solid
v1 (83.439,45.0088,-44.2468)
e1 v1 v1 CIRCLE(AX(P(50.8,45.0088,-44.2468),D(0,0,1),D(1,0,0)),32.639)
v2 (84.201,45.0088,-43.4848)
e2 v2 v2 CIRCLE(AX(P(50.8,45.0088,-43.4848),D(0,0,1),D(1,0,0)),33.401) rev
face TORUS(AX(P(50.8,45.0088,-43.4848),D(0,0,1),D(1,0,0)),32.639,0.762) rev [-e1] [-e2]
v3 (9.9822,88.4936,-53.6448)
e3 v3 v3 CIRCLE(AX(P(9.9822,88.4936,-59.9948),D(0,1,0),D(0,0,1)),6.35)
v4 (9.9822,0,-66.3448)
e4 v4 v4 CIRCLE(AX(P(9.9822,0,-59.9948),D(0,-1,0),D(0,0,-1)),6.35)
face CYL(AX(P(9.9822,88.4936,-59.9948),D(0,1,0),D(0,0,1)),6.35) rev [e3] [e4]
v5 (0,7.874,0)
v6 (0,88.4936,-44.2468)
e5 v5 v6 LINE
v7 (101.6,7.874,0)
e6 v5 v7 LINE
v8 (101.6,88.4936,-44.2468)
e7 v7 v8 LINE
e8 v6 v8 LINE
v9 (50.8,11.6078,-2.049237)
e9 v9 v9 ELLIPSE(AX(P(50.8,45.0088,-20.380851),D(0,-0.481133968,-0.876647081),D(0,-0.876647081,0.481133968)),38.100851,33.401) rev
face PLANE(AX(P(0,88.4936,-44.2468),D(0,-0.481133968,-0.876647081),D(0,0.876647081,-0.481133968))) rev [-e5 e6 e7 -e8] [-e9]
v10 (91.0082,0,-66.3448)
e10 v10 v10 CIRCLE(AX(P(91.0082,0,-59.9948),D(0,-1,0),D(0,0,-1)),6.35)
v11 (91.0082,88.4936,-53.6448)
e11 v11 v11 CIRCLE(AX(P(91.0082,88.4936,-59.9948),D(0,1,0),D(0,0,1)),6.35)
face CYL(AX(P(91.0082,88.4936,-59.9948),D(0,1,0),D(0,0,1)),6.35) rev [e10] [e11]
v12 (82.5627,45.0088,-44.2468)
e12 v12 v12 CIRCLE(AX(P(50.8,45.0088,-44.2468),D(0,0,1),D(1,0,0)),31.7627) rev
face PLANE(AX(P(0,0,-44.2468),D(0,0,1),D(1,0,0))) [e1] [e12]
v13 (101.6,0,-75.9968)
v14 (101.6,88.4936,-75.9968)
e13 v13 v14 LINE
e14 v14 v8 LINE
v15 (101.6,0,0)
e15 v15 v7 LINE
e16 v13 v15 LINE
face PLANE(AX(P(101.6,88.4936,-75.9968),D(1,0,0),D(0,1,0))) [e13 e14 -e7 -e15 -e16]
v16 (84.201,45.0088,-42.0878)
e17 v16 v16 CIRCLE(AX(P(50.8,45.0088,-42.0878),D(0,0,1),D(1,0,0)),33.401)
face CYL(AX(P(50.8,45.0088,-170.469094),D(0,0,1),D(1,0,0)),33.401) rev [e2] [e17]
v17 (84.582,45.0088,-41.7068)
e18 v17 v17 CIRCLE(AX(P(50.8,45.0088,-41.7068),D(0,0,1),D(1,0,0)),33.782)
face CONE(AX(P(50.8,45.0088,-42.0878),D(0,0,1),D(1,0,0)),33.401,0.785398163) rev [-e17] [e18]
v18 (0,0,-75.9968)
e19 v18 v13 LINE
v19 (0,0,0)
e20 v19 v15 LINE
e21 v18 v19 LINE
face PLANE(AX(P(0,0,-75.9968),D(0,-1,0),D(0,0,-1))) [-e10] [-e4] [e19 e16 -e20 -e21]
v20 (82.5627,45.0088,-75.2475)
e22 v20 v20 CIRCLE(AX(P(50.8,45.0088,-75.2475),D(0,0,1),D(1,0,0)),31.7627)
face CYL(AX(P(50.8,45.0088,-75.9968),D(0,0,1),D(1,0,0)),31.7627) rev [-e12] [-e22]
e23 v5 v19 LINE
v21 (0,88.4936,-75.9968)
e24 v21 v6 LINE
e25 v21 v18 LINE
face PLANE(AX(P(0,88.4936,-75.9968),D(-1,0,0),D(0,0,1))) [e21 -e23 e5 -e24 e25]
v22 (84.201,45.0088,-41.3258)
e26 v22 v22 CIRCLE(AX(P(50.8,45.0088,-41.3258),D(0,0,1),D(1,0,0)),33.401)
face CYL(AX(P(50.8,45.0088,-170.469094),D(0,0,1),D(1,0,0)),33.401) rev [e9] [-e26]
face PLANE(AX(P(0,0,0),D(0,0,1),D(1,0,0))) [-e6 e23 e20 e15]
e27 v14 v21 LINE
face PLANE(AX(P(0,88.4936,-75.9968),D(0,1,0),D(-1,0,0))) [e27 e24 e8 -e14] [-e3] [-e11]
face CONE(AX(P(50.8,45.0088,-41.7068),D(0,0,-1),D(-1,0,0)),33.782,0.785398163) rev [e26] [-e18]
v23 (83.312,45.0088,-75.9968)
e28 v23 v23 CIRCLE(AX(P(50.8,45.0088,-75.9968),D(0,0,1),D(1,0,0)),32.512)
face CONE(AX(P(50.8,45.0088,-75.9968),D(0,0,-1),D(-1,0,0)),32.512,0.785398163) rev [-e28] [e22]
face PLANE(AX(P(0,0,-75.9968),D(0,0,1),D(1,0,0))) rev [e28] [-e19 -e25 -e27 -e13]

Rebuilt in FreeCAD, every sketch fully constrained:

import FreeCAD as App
import Part
import Sketcher
from FreeCAD import Vector
Q = App.Units.Quantity


def edges_at(feature, points):
    """Names of the edges that pass closest to the given points."""
    edges = feature.Shape.Edges
    near = lambda p: min(range(len(edges)), key=lambda i: edges[i].distToShape(Part.Vertex(*p))[0])
    return sorted({f"Edge{near(p) + 1}" for p in points})


def add_polygon(sketch, points):
    """Adds a closed chain of lines whose ends are joined by coincident constraints."""
    first, n = sketch.GeometryCount, len(points)
    for a, b in zip(points, points[1:] + points[:1]):
        sketch.addGeometry(Part.LineSegment(App.Vector(*a, 0), App.Vector(*b, 0)), False)
    for i in range(n):
        sketch.addConstraint(Sketcher.Constraint("Coincident", first + i, 2, first + (i + 1) % n, 1))

doc = App.newDocument("Part")
body = doc.addObject("PartDesign::Body", "Body")

# Sketch on XY plane
sketch1 = body.newObject("Sketcher::SketchObject", "Sketch")
sketch1.AttachmentSupport = (doc.getObject("XY_Plane"), [""])
sketch1.MapMode = "FlatFace"
add_polygon(sketch1, [(0, 88), (0, 0), (102, 0), (102, 88)])  # lines 0-3
sketch1.addGeometry(Part.Circle(Vector(51, 45, 0), Vector(0, 0, 1), 32), False)  # 4
sketch1.addConstraint(Sketcher.Constraint("Vertical", 0))
sketch1.addConstraint(Sketcher.Constraint("Horizontal", 1))
sketch1.addConstraint(Sketcher.Constraint("Vertical", 2))
sketch1.addConstraint(Sketcher.Constraint("Horizontal", 3))
sketch1.addConstraint(Sketcher.Constraint("Coincident", 0, 2, -1, 1))
sketch1.addConstraint(Sketcher.Constraint("DistanceX", 1, 1, 1, 2, Q("4 in")))
sketch1.addConstraint(Sketcher.Constraint("Diameter", 4, Q("2.501 in")))
sketch1.addConstraint(Sketcher.Constraint("DistanceX", -1, 1, 4, 3, Q("2 in")))
sketch1.addConstraint(Sketcher.Constraint("DistanceY", 0, 2, 0, 1, Q("3.484 in")))
sketch1.addConstraint(Sketcher.Constraint("DistanceY", -1, 1, 4, 3, Q("1.772 in")))
pad1 = body.newObject("PartDesign::Pad", "Pad")
pad1.Profile = sketch1
pad1.Length = Q("2.992 in")
pad1.Reversed = True

# Sketch on YZ plane
sketch2 = body.newObject("Sketcher::SketchObject", "Sketch001")
sketch2.AttachmentSupport = (doc.getObject("YZ_Plane"), [""])
sketch2.MapMode = "FlatFace"
sketch2.AttachmentOffset = App.Placement(Vector(0, 0, 4 * 25.4), App.Rotation())
add_polygon(sketch2, [(88, -44), (88, 0), (8, 0)])  # lines 0-2
sketch2.addConstraint(Sketcher.Constraint("Vertical", 0))
sketch2.addConstraint(Sketcher.Constraint("Horizontal", 1))
sketch2.addConstraint(Sketcher.Constraint("PointOnObject", 0, 2, -1))
sketch2.addConstraint(Sketcher.Constraint("DistanceX", 1, 2, 1, 1, Q("3.174 in")))
sketch2.addConstraint(Sketcher.Constraint("DistanceY", 0, 1, 0, 2, Q("1.742 in")))
sketch2.addConstraint(Sketcher.Constraint("DistanceX", -1, 1, 1, 2, Q("0.31 in")))
pocket1 = body.newObject("PartDesign::Pocket", "Pocket")
pocket1.Profile = sketch2
pocket1.Type = "ThroughAll"

# Sketch on XY plane
sketch3 = body.newObject("Sketcher::SketchObject", "Sketch002")
sketch3.AttachmentSupport = (doc.getObject("XY_Plane"), [""])
sketch3.MapMode = "FlatFace"
sketch3.addGeometry(Part.Circle(Vector(51, 45, 0), Vector(0, 0, 1), 33), False)
sketch3.addConstraint(Sketcher.Constraint("Diameter", 0, Q("2.63 in")))
sketch3.addConstraint(Sketcher.Constraint("DistanceX", -1, 1, 0, 3, Q("2 in")))
sketch3.addConstraint(Sketcher.Constraint("DistanceY", -1, 1, 0, 3, Q("1.772 in")))
pocket2 = body.newObject("PartDesign::Pocket", "Pocket001")
pocket2.Profile = sketch3
pocket2.Length = Q("1.742 in")
doc.recompute()

fillet = body.newObject("PartDesign::Fillet", "Fillet")
fillet.Base = (pocket2, edges_at(pocket2, [(17.399, 45.009, -44.247)]))
fillet.Radius = Q("0.03 in")

# Sketch on XZ plane
sketch4 = body.newObject("Sketcher::SketchObject", "Sketch003")
sketch4.AttachmentSupport = (doc.getObject("XZ_Plane"), [""])
sketch4.MapMode = "FlatFace"
sketch4.AttachmentOffset = App.Placement(Vector(0, 0, -3.484 * 25.4), App.Rotation())
sketch4.addGeometry(Part.Circle(Vector(10, -60, 0), Vector(0, 0, 1), 6), False)
sketch4.addGeometry(Part.Circle(Vector(91, -60, 0), Vector(0, 0, 1), 6), False)
sketch4.addConstraint(Sketcher.Constraint("Equal", 0, 1))
sketch4.addConstraint(Sketcher.Constraint("Horizontal", 0, 3, 1, 3))
sketch4.addConstraint(Sketcher.Constraint("Diameter", 0, Q("0.5 in")))
sketch4.addConstraint(Sketcher.Constraint("DistanceX", 0, 3, 1, 3, Q("3.19 in")))
sketch4.addConstraint(Sketcher.Constraint("DistanceX", -1, 1, 0, 3, Q("0.393 in")))
sketch4.addConstraint(Sketcher.Constraint("DistanceY", 0, 3, -1, 1, Q("2.362 in")))
doc.recompute()
hole = body.newObject("PartDesign::Hole", "Hole")
hole.Profile = sketch4
hole.ThreadType = "None"
hole.Diameter = Q("0.5 in")
hole.DepthType = "Dimension"
hole.Depth = Q("3.484 in")
hole.DrillPoint = "Flat"
hole.Reversed = True

# Sketch on XZ plane
sketch5 = body.newObject("Sketcher::SketchObject", "Sketch004")
sketch5.AttachmentSupport = (doc.getObject("XZ_Plane"), [""])
sketch5.MapMode = "FlatFace"
sketch5.AttachmentOffset = App.Placement(Vector(0, 0, -1.772 * 25.4), App.Rotation())
add_polygon(sketch5, [(17.4, -41.3), (17.4, -42.1), (17, -41.7)])  # lines 0-2
add_polygon(sketch5, [(19, -75.2), (19, -76), (18.3, -76)])  # lines 3-5
sketch5.addGeometry(Part.LineSegment(Vector(50.8, -41.3, 0), Vector(50.8, -76, 0)), True)  # axis
sketch5.addConstraint(Sketcher.Constraint("Vertical", 0))
sketch5.addConstraint(Sketcher.Constraint("Vertical", 3))
sketch5.addConstraint(Sketcher.Constraint("Horizontal", 4))
sketch5.addConstraint(Sketcher.Constraint("Vertical", 6))
sketch5.addConstraint(Sketcher.Constraint("Perpendicular", 1, 2))
sketch5.addConstraint(Sketcher.Constraint("Parallel", 2, 5))
sketch5.addConstraint(Sketcher.Constraint("Horizontal", 2, 2, 6, 1))
sketch5.addConstraint(Sketcher.Constraint("Horizontal", 4, 2, 6, 2))
sketch5.addConstraint(Sketcher.Constraint("Equal", 4, 3))
sketch5.addConstraint(Sketcher.Constraint("DistanceX", -1, 1, 6, 1, Q("2 in")))
sketch5.addConstraint(Sketcher.Constraint("DistanceY", 0, 2, 0, 1, Q("0.03 in")))
sketch5.addConstraint(Sketcher.Constraint("DistanceY", 6, 2, 6, 1, Q("1.365 in")))
sketch5.addConstraint(Sketcher.Constraint("DistanceX", -1, 1, 1, 2, Q("0.67 in")))
sketch5.addConstraint(Sketcher.Constraint("DistanceX", -1, 1, 4, 2, Q("0.72 in")))
sketch5.addConstraint(Sketcher.Constraint("DistanceX", 4, 2, 4, 1, Q("0.0295 in")))
sketch5.addConstraint(Sketcher.Constraint("DistanceY", 0, 2, -1, 1, Q("1.657 in")))
groove = body.newObject("PartDesign::Groove", "Groove")
groove.Profile = sketch5
groove.ReferenceAxis = (sketch5, ["Axis0"])
groove.Angle = 360

doc.recompute()
